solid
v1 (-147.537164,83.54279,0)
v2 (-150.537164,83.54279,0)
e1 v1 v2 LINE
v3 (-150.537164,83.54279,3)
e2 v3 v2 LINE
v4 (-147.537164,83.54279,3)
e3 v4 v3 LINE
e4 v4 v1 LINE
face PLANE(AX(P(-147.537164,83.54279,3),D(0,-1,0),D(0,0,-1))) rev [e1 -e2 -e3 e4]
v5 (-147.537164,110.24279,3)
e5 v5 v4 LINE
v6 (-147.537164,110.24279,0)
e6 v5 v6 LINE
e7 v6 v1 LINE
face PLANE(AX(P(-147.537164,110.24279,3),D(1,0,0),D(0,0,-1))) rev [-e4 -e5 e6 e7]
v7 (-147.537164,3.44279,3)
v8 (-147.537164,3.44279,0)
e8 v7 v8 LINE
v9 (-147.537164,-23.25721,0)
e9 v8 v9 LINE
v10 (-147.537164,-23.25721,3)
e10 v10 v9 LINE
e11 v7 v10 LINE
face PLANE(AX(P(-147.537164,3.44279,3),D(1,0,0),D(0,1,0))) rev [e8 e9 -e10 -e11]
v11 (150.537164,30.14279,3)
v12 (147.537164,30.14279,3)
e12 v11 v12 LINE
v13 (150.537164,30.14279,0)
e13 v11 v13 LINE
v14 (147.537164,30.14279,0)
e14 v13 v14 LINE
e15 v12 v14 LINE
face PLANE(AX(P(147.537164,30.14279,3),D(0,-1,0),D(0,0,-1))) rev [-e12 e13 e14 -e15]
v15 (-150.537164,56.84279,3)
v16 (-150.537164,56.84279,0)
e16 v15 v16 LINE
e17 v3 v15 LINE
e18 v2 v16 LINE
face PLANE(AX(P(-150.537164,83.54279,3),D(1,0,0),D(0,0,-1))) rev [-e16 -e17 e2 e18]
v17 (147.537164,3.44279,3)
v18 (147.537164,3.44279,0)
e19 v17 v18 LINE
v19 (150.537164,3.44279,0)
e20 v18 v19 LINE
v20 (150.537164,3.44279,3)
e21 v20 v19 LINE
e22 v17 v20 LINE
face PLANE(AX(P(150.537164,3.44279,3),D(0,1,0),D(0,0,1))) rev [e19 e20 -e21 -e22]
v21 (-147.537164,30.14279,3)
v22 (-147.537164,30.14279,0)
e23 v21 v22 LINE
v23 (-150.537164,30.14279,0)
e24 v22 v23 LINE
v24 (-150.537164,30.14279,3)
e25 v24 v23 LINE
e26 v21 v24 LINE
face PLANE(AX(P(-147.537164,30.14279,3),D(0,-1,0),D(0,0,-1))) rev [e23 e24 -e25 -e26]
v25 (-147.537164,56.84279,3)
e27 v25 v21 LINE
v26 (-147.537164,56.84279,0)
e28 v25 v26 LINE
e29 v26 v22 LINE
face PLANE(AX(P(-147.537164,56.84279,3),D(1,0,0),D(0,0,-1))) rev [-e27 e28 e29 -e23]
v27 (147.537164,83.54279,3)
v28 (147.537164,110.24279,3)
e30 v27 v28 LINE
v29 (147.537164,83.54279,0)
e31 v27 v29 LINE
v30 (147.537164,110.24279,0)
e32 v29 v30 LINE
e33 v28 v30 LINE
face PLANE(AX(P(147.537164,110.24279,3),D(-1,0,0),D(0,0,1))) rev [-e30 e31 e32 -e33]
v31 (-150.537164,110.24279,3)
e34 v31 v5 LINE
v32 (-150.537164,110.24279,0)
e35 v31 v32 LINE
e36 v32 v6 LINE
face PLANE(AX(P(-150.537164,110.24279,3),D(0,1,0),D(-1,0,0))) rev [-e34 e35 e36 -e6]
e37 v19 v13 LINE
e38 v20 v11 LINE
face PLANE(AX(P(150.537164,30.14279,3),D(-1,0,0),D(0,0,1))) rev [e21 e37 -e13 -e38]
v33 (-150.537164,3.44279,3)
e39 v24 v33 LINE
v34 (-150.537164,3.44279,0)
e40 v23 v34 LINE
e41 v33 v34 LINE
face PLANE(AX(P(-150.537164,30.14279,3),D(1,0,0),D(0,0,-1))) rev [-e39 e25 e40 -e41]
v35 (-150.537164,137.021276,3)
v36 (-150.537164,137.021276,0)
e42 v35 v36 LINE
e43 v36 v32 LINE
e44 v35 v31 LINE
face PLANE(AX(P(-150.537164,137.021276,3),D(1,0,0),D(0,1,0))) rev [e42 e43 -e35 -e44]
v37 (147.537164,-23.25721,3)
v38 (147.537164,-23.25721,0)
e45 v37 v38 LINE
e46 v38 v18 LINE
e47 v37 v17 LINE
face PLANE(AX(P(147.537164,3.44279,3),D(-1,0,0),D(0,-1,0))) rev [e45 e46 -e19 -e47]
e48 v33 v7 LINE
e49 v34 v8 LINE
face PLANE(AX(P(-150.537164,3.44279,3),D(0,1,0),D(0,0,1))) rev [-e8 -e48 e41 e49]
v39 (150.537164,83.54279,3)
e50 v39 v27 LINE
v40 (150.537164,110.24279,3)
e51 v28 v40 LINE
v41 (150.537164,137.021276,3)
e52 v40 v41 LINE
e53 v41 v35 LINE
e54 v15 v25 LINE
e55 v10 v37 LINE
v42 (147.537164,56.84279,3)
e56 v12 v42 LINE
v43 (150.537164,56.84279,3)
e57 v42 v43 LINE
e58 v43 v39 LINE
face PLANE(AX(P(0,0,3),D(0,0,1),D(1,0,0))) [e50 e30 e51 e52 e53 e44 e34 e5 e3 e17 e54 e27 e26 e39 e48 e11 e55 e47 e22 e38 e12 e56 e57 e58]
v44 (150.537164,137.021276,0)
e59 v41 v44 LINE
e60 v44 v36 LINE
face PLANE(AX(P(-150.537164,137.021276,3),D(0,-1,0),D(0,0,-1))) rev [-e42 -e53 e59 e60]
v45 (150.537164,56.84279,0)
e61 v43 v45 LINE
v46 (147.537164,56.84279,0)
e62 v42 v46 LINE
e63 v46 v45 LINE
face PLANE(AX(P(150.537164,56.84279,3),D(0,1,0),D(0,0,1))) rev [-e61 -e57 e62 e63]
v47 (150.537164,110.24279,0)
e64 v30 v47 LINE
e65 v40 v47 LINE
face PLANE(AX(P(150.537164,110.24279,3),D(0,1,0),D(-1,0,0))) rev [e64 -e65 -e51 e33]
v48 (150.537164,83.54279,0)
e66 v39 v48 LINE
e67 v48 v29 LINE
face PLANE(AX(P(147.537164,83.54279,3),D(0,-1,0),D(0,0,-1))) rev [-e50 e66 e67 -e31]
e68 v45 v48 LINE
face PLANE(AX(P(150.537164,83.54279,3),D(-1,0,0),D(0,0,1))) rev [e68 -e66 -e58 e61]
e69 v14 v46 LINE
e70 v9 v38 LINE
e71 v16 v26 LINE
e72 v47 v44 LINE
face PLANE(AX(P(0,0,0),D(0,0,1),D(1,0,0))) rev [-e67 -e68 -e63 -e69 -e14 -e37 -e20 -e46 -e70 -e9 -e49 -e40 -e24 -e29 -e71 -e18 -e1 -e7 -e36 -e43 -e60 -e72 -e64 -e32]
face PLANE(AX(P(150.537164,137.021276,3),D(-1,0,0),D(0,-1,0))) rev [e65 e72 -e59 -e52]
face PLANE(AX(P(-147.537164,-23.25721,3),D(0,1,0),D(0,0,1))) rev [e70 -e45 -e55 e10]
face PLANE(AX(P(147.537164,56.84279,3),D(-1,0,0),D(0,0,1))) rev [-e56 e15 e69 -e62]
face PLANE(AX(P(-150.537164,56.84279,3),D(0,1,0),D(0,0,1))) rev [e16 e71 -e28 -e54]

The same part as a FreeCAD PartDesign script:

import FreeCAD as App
import Part
import Sketcher

V = App.Vector


def add_polygon(sketch, points):
    """Adds a closed chain of lines whose ends are joined by coincident constraints."""
    first, n = sketch.GeometryCount, len(points)
    for a, b in zip(points, points[1:] + points[:1]):
        sketch.addGeometry(Part.LineSegment(App.Vector(*a, 0), App.Vector(*b, 0)), False)
    for i in range(n):
        sketch.addConstraint(Sketcher.Constraint("Coincident", first + i, 2, first + (i + 1) % n, 1))

doc = App.newDocument("Part")
params = doc.addObject("Spreadsheet::Sheet", "Params")
for row, (alias, value) in enumerate([
    ("sketch1_width", "3 mm"),
    ("sketch1_height", "26.7 mm"),
    ("pad1_length", "3 mm"),
], start=1):
    params.set(f"A{row}", alias)
    params.set(f"B{row}", "=" + value)
    params.setAlias(f"B{row}", alias)

body = doc.addObject("PartDesign::Body", "Body")

# Sketch on XY plane
sketch1 = body.newObject("Sketcher::SketchObject", "Sketch")
sketch1.AttachmentSupport = (doc.getObject("XY_Plane"), [""])
sketch1.MapMode = "FlatFace"
add_polygon(sketch1, [(-147.537164, -23.25721), (147.537164, -23.25721), (147.537164, 3.44279), (150.537164, 3.44279), (150.537164, 30.14279), (147.537164, 30.14279), (147.537164, 56.84279), (150.537164, 56.84279), (150.537164, 83.54279), (147.537164, 83.54279), (147.537164, 110.24279), (150.537164, 110.24279), (150.537164, 137.021276), (-150.537164, 137.021276), (-150.537164, 110.24279), (-147.537164, 110.24279), (-147.537164, 83.54279), (-150.537164, 83.54279), (-150.537164, 56.84279), (-147.537164, 56.84279), (-147.537164, 30.14279), (-150.537164, 30.14279), (-150.537164, 3.44279), (-147.537164, 3.44279)])  # lines 0-23
sketch1.addConstraint([
    Sketcher.Constraint("Horizontal", 0),
    Sketcher.Constraint("Vertical", 1),
    Sketcher.Constraint("Horizontal", 2),
    Sketcher.Constraint("Vertical", 3),
    Sketcher.Constraint("Horizontal", 4),
    Sketcher.Constraint("Vertical", 5),
    Sketcher.Constraint("Horizontal", 6),
    Sketcher.Constraint("Vertical", 7),
    Sketcher.Constraint("Horizontal", 8),
    Sketcher.Constraint("Vertical", 9),
    Sketcher.Constraint("Horizontal", 10),
    Sketcher.Constraint("Vertical", 11),
    Sketcher.Constraint("Horizontal", 12),
    Sketcher.Constraint("Vertical", 13),
    Sketcher.Constraint("Horizontal", 14),
    Sketcher.Constraint("Vertical", 15),
    Sketcher.Constraint("Horizontal", 16),
    Sketcher.Constraint("Vertical", 17),
    Sketcher.Constraint("Horizontal", 18),
    Sketcher.Constraint("Vertical", 19),
    Sketcher.Constraint("Horizontal", 20),
    Sketcher.Constraint("Vertical", 21),
    Sketcher.Constraint("Horizontal", 22),
    Sketcher.Constraint("Vertical", 23),
    Sketcher.Constraint("Symmetric", 10, 2, 13, 2, -2),
    Sketcher.Constraint("Symmetric", 8, 2, 15, 2, -2),
    Sketcher.Constraint("Symmetric", 6, 2, 17, 2, -2),
    Sketcher.Constraint("Symmetric", 4, 2, 19, 2, -2),
    Sketcher.Constraint("Symmetric", 2, 2, 21, 2, -2),
    Sketcher.Constraint("Vertical", 1, 2, 4, 2),
    Sketcher.Constraint("Vertical", 3, 2, 6, 2),
    Sketcher.Constraint("Vertical", 5, 2, 8, 2),
    Sketcher.Constraint("Vertical", 7, 2, 10, 2),
    Sketcher.Constraint("Vertical", 19, 2, 22, 2),
    Sketcher.Constraint("Equal", 1, 3),
    Sketcher.Constraint("Equal", 3, 5),
    Sketcher.Constraint("Equal", 5, 7),
    Sketcher.Constraint("Equal", 7, 9),
    Sketcher.Constraint("DistanceX", 2, 1, 2, 2, 3.0),
    Sketcher.Constraint("DistanceY", 1, 1, 1, 2, 26.7),
    Sketcher.Constraint("DistanceX", 0, 1, 0, 2, 295.074328),
    Sketcher.Constraint("DistanceY", 11, 1, 11, 2, 26.778486),
    Sketcher.Constraint("DistanceY", 0, 2, -1, 1, 23.25721),
])
sketch1.setExpression("Constraints[62]", "Params.sketch1_width")
sketch1.setExpression("Constraints[63]", "Params.sketch1_height")
pad1 = body.newObject("PartDesign::Pad", "Pad")
pad1.Profile = sketch1
pad1.setExpression("Length", "Params.pad1_length")

doc.recompute()
